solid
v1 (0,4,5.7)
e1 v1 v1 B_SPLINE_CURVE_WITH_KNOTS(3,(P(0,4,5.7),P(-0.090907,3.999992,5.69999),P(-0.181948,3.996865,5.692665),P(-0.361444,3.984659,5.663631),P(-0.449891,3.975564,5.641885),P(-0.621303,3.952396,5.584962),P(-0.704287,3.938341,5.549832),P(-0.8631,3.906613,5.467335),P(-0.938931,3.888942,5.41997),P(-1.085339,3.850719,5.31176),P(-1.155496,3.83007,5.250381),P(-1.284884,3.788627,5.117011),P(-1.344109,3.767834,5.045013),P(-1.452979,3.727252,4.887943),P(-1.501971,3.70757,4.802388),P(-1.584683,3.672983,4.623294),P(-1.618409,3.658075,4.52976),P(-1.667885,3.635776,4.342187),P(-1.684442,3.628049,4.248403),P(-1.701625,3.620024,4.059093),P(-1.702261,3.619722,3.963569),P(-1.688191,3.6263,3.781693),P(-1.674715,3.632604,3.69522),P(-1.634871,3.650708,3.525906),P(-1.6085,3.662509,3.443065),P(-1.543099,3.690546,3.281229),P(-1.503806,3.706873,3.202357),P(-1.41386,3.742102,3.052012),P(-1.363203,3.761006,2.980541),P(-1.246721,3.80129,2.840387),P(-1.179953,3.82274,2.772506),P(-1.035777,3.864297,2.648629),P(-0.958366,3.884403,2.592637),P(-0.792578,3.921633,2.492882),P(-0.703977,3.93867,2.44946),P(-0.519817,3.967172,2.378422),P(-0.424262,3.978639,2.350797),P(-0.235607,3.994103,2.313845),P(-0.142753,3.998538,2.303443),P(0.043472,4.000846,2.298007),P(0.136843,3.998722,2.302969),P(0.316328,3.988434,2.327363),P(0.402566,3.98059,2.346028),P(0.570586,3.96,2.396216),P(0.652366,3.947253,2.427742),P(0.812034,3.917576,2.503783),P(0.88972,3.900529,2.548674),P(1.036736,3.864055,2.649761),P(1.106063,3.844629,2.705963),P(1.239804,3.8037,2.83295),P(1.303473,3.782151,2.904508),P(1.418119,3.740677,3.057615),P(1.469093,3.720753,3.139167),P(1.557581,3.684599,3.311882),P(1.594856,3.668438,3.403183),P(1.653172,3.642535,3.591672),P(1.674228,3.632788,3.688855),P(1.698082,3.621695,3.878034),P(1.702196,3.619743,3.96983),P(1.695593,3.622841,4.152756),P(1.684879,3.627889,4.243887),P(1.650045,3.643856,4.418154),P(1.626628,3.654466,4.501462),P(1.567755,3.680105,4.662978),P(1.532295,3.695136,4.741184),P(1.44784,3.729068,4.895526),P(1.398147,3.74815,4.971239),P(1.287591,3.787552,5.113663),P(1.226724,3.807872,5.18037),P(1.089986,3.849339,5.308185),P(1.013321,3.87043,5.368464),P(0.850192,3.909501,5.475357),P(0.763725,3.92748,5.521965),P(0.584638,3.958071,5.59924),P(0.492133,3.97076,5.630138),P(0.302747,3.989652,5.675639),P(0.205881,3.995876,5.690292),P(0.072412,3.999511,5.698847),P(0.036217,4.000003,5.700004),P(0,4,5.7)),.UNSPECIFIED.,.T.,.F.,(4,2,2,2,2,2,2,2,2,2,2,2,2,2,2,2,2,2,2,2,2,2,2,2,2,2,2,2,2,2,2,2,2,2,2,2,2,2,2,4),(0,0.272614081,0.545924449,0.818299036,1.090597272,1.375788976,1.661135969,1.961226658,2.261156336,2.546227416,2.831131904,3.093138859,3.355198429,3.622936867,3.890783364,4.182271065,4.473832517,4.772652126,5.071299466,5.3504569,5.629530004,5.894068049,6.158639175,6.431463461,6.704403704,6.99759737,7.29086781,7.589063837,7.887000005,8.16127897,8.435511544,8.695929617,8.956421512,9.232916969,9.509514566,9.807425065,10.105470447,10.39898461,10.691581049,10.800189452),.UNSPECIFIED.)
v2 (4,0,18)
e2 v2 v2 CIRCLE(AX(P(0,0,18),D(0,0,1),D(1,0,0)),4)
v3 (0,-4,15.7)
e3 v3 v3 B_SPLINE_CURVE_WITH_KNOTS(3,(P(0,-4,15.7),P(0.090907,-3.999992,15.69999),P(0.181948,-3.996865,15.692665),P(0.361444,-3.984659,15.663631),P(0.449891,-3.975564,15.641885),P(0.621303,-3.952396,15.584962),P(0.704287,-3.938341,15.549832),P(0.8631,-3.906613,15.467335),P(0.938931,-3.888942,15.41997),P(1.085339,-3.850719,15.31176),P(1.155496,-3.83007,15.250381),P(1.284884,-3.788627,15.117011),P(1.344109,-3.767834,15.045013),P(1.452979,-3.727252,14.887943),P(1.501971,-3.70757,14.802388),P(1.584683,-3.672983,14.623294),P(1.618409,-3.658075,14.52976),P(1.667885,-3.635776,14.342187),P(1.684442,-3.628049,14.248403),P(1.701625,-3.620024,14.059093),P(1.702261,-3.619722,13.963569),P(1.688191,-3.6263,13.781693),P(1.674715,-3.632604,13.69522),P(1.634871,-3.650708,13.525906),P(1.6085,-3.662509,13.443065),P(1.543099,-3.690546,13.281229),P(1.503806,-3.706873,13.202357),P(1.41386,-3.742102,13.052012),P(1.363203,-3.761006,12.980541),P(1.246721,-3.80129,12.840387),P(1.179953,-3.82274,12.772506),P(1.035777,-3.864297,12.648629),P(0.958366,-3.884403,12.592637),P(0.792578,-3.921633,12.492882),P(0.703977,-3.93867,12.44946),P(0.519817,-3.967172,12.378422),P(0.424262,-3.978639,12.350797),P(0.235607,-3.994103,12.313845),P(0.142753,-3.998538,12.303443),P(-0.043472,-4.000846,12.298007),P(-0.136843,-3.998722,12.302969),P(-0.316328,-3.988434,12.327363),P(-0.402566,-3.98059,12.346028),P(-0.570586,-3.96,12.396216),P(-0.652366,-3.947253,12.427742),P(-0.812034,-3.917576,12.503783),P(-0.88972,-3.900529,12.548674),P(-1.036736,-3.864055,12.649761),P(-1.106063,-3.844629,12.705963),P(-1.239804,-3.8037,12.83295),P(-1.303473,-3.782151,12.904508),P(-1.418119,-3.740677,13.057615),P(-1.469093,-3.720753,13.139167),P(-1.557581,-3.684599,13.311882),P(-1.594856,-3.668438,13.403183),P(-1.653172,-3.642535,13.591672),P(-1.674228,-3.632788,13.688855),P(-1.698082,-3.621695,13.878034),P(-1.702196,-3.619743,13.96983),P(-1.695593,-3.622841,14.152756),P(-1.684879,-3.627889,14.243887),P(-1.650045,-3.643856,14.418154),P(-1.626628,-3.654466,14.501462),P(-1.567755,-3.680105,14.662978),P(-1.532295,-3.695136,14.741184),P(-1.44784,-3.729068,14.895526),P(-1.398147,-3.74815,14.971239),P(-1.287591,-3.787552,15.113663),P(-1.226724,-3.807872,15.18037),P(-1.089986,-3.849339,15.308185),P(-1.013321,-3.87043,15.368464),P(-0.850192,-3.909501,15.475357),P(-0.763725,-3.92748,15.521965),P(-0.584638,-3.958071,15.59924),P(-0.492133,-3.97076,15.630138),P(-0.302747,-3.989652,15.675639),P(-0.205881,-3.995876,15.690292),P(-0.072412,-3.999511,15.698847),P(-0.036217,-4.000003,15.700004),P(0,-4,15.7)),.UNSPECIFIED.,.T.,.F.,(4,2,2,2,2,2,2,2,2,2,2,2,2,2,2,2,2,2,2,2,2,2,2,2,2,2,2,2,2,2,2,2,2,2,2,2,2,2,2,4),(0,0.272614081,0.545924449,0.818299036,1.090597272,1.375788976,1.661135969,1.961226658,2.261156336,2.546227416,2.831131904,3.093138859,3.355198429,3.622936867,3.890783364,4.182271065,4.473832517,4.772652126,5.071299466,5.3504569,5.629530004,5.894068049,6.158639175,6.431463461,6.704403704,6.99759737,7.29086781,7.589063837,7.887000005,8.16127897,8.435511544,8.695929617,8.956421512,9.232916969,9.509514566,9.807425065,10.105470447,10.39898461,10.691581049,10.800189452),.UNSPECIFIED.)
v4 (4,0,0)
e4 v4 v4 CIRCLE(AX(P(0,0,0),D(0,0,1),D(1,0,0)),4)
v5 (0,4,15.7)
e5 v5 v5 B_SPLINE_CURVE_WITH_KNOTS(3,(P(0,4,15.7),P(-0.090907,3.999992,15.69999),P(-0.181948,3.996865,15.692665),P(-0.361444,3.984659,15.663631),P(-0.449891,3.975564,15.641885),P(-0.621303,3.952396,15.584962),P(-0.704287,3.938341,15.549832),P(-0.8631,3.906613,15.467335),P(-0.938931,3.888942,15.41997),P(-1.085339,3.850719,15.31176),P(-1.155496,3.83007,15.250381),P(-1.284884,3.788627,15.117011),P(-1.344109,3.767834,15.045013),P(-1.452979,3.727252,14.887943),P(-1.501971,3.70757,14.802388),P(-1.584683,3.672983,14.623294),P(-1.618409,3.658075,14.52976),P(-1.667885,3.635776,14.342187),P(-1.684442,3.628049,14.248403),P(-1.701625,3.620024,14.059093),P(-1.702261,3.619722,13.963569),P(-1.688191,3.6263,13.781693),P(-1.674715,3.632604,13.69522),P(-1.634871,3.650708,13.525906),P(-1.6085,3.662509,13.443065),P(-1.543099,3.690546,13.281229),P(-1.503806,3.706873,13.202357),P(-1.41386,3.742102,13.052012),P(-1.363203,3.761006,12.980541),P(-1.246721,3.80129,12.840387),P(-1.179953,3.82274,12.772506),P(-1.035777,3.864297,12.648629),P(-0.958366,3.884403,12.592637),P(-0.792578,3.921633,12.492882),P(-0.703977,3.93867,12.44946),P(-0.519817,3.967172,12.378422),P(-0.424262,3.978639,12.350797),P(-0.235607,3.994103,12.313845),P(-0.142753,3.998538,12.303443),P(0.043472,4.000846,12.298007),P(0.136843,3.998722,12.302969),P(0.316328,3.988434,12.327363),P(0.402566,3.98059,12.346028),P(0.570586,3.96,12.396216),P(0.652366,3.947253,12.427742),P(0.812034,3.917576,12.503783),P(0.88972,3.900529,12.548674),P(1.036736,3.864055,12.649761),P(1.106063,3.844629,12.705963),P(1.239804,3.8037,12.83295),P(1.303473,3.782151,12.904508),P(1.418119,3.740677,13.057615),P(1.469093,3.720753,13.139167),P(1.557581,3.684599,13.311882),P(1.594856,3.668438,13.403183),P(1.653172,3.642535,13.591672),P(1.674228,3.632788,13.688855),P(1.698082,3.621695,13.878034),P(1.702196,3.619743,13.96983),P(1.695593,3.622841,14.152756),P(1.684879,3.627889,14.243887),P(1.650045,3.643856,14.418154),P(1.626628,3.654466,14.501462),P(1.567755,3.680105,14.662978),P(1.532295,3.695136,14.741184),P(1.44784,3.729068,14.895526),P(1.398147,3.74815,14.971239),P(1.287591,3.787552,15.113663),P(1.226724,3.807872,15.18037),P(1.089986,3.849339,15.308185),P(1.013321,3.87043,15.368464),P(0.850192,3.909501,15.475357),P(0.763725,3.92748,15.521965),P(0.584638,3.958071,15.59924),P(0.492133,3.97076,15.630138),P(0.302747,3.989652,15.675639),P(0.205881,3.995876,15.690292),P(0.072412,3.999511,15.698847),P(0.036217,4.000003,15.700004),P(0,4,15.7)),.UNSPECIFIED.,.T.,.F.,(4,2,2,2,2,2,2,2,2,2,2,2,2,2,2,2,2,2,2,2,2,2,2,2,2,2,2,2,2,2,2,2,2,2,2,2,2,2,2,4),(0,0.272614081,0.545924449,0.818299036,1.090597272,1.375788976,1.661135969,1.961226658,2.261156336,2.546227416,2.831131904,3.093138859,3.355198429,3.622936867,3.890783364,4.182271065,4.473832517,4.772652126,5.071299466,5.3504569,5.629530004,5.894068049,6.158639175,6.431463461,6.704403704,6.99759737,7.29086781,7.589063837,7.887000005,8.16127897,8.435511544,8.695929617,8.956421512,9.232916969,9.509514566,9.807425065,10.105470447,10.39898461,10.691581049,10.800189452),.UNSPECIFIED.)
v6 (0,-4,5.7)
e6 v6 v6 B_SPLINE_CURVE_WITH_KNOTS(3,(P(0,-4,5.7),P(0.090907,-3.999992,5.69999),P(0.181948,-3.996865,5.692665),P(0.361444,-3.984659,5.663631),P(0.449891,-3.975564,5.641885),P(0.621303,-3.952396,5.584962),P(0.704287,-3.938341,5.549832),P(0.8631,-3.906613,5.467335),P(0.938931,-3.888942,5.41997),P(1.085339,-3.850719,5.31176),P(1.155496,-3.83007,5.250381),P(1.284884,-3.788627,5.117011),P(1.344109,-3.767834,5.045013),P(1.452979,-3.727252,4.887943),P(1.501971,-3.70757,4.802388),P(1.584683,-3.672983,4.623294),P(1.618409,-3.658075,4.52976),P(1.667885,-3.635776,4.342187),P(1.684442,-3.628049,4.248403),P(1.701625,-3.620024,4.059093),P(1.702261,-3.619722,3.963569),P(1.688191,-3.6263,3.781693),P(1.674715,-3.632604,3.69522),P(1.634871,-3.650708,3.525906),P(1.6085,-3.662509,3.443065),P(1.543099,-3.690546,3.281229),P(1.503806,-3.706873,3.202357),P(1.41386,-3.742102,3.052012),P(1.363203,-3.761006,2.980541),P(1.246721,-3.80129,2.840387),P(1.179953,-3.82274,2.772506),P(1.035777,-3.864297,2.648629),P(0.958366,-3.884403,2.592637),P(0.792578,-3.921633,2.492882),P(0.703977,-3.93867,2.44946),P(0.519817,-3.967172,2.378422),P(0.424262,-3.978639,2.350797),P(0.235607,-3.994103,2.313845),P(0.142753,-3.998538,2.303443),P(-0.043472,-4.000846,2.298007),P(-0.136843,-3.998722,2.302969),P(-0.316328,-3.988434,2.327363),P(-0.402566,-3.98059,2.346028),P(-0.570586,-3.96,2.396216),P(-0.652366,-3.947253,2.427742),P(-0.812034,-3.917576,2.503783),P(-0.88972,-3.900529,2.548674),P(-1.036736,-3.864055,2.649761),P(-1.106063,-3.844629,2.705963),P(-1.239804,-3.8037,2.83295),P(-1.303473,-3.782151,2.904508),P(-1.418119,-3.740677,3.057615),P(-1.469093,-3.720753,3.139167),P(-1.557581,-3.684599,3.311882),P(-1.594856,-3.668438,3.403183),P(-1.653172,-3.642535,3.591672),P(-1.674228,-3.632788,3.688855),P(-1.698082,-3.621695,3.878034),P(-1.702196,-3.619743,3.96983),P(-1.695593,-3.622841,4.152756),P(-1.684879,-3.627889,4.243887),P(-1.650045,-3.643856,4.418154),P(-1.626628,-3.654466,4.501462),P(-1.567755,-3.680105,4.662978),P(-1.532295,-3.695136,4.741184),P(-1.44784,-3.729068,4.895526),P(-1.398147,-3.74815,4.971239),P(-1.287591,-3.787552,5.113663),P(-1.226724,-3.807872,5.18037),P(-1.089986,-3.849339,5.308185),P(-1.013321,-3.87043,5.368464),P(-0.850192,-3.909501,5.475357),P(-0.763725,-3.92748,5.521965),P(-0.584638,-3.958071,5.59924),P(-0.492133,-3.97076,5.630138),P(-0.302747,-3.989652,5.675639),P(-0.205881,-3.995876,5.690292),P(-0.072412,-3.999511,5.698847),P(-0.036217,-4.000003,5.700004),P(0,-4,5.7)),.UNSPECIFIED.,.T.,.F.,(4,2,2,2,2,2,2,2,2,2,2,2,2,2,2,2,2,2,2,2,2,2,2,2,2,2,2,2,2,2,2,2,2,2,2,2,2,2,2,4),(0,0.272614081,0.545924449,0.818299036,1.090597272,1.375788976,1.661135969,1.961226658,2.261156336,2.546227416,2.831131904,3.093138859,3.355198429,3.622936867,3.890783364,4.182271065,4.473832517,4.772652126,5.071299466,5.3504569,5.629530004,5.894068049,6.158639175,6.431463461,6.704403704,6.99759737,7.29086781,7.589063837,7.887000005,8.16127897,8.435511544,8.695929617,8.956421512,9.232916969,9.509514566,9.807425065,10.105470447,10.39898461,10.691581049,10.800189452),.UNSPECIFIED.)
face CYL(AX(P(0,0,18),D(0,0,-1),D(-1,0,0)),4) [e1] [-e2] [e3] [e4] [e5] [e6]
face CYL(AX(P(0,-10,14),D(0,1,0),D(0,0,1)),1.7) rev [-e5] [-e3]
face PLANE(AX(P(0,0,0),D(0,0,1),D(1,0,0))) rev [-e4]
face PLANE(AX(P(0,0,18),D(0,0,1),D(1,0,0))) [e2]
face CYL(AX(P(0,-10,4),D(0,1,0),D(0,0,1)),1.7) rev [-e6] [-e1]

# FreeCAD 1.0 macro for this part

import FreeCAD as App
import Part
import Sketcher
from FreeCAD import Vector
Q = App.Units.Quantity

doc = App.newDocument("Part")
params = doc.addObject("Spreadsheet::Sheet", "Params")
for row, (alias, value) in enumerate([
    ("sketch1_diameter", "8 mm"),
    ("pad1_length", "18 mm"),
    ("sketch2_diameter", "3.4 mm"),
], start=1):
    params.set(f"A{row}", alias)
    params.set(f"B{row}", "=" + value)
    params.setAlias(f"B{row}", alias)

body = doc.addObject("PartDesign::Body", "Body")

# Sketch on XY plane
sketch1 = body.newObject("Sketcher::SketchObject", "Sketch")
sketch1.AttachmentSupport = (doc.getObject("XY_Plane"), [""])
sketch1.MapMode = "FlatFace"
sketch1.addGeometry(Part.Circle(Vector(0, 0, 0), Vector(0, 0, 1), 4), False)
sketch1.addConstraint([
    Sketcher.Constraint("Coincident", 0, 3, -1, 1),
    Sketcher.Constraint("Diameter", 0, Q("8 mm")),
])
sketch1.setExpression("Constraints[1]", "Params.sketch1_diameter")
pad1 = body.newObject("PartDesign::Pad", "Pad")
pad1.Profile = sketch1
pad1.setExpression("Length", "Params.pad1_length")

# Sketch on XZ plane
sketch2 = body.newObject("Sketcher::SketchObject", "Sketch001")
sketch2.AttachmentSupport = (doc.getObject("XZ_Plane"), [""])
sketch2.MapMode = "FlatFace"
sketch2.addGeometry([
    Part.Circle(Vector(0, 4, 0), Vector(0, 0, 1), 1.7),
    Part.Circle(Vector(0, 14, 0), Vector(0, 0, 1), 1.7),
], False)
sketch2.addConstraint([
    Sketcher.Constraint("Equal", 0, 1),
    Sketcher.Constraint("PointOnObject", 0, 3, -2),
    Sketcher.Constraint("PointOnObject", 1, 3, -2),
    Sketcher.Constraint("Diameter", 0, Q("3.4 mm")),
    Sketcher.Constraint("DistanceY", -1, 1, 0, 3, Q("4 mm")),
    Sketcher.Constraint("DistanceY", -1, 1, 1, 3, Q("14 mm")),
])
sketch2.setExpression("Constraints[3]", "Params.sketch2_diameter")
pocket1 = body.newObject("PartDesign::Pocket", "Pocket")
pocket1.Profile = sketch2
pocket1.Type = "ThroughAll"
pocket1.Midplane = True

doc.recompute()
